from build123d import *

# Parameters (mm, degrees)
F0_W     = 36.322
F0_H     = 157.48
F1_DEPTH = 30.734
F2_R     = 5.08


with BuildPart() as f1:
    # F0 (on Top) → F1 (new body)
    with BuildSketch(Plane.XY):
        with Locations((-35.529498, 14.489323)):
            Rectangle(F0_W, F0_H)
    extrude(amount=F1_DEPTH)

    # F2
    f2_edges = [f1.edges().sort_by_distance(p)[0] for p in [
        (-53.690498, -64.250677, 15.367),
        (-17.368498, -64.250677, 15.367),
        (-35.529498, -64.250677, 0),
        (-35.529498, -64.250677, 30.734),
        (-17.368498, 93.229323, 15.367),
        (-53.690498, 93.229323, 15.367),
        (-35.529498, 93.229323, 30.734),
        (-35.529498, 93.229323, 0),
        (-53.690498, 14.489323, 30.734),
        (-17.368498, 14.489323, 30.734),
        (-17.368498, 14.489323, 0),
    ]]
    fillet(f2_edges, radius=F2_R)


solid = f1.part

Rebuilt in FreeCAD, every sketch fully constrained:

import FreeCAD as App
import Part
import Sketcher
Q = App.Units.Quantity


def edges_at(feature, points):
    """Names of the edges that pass closest to the given points."""
    edges = feature.Shape.Edges
    near = lambda p: min(range(len(edges)), key=lambda i: edges[i].distToShape(Part.Vertex(*p))[0])
    return sorted({f"Edge{near(p) + 1}" for p in points})


def add_polygon(sketch, points):
    """Adds a closed chain of lines whose ends are joined by coincident constraints."""
    first, n = sketch.GeometryCount, len(points)
    for a, b in zip(points, points[1:] + points[:1]):
        sketch.addGeometry(Part.LineSegment(App.Vector(*a, 0), App.Vector(*b, 0)), False)
    for i in range(n):
        sketch.addConstraint(Sketcher.Constraint("Coincident", first + i, 2, first + (i + 1) % n, 1))

doc = App.newDocument("Part")
params = doc.addObject("Spreadsheet::Sheet", "Params")
for row, (alias, value) in enumerate([
    ("sketch1_height", "6.2 in"),
    ("sketch1_width", "1.43 in"),
    ("pad1_length", "1.21 in"),
    ("fillet_radius", "0.2 in"),
], start=1):
    params.set(f"A{row}", alias)
    params.set(f"B{row}", "=" + value)
    params.setAlias(f"B{row}", alias)

body = doc.addObject("PartDesign::Body", "Body")

# Sketch on XY plane
sketch1 = body.newObject("Sketcher::SketchObject", "Sketch")
sketch1.AttachmentSupport = (doc.getObject("XY_Plane"), [""])
sketch1.MapMode = "FlatFace"
add_polygon(sketch1, [(-53.690498, 93.229323), (-53.690498, -64.250677), (-17.368498, -64.250677), (-17.368498, 93.229323)])  # lines 0-3
sketch1.addConstraint(Sketcher.Constraint("Vertical", 0))
sketch1.addConstraint(Sketcher.Constraint("Horizontal", 1))
sketch1.addConstraint(Sketcher.Constraint("Vertical", 2))
sketch1.addConstraint(Sketcher.Constraint("Horizontal", 3))
sketch1.addConstraint(Sketcher.Constraint("DistanceY", 0, 2, 0, 1, Q("6.2 in")))
sketch1.addConstraint(Sketcher.Constraint("DistanceX", 1, 1, 1, 2, Q("1.43 in")))
sketch1.addConstraint(Sketcher.Constraint("DistanceX", 0, 2, -1, 1, Q("53.690498 mm")))
sketch1.addConstraint(Sketcher.Constraint("DistanceY", 0, 2, -1, 1, Q("64.250677 mm")))
sketch1.setExpression("Constraints[8]", "Params.sketch1_height")
sketch1.setExpression("Constraints[9]", "Params.sketch1_width")
pad1 = body.newObject("PartDesign::Pad", "Pad")
pad1.Profile = sketch1
pad1.setExpression("Length", "Params.pad1_length")
doc.recompute()

fillet = body.newObject("PartDesign::Fillet", "Fillet")
fillet.Base = (pad1, edges_at(pad1, [
    (-53.69, -64.251, 15.367),
    (-17.368, -64.251, 15.367),
    (-35.529, -64.251, 0),
    (-35.529, -64.251, 30.734),
    (-17.368, 93.229, 15.367),
    (-53.69, 93.229, 15.367),
    (-35.529, 93.229, 30.734),
    (-35.529, 93.229, 0),
    (-53.69, 14.489, 30.734),
    (-17.368, 14.489, 30.734),
    (-17.368, 14.489, 0),
]))
fillet.setExpression("Radius", "Params.fillet_radius")

doc.recompute()
